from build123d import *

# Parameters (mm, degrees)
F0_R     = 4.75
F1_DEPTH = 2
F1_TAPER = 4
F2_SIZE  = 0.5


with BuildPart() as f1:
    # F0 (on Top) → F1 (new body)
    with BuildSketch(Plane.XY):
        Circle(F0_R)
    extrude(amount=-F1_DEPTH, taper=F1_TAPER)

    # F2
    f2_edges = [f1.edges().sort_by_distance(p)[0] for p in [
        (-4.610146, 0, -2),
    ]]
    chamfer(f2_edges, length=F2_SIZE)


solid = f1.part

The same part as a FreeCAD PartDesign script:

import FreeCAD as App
import Part
import Sketcher

V = App.Vector
Q = App.Units.Quantity


def edges_at(feature, points):
    """Names of the edges that pass closest to the given points."""
    edges = feature.Shape.Edges
    near = lambda p: min(range(len(edges)), key=lambda i: edges[i].distToShape(Part.Vertex(*p))[0])
    return sorted({f"Edge{near(p) + 1}" for p in points})

doc = App.newDocument("Part")
params = doc.addObject("Spreadsheet::Sheet", "Params")
for row, (alias, value) in enumerate([
    ("sketch1_diameter", "9.5 mm"),
    ("pad1_length", "2 mm"),
    ("pad1_taper", "-4 deg"),
    ("chamfer_size", "0.5 mm"),
], start=1):
    params.set(f"A{row}", alias)
    params.set(f"B{row}", "=" + value)
    params.setAlias(f"B{row}", alias)

body = doc.addObject("PartDesign::Body", "Body")

# Sketch on XY plane
sketch1 = body.newObject("Sketcher::SketchObject", "Sketch")
sketch1.AttachmentSupport = (doc.getObject("XY_Plane"), [""])
sketch1.MapMode = "FlatFace"
sketch1.addGeometry(Part.Circle(V(0, 0, 0), V(0, 0, 1), 4.8), False)
sketch1.addConstraint([
    Sketcher.Constraint("Coincident", 0, 3, -1, 1),
    Sketcher.Constraint("Diameter", 0, Q("9.5 mm")),
])
sketch1.setExpression("Constraints[1]", "Params.sketch1_diameter")
pad1 = body.newObject("PartDesign::Pad", "Pad")
pad1.Profile = sketch1
pad1.setExpression("Length", "Params.pad1_length")
pad1.Reversed = True
pad1.setExpression("TaperAngle", "Params.pad1_taper")
doc.recompute()

chamfer = body.newObject("PartDesign::Chamfer", "Chamfer")
chamfer.Base = (pad1, edges_at(pad1, [(-4.61, 0, -2)]))
chamfer.setExpression("Size", "Params.chamfer_size")

doc.recompute()
